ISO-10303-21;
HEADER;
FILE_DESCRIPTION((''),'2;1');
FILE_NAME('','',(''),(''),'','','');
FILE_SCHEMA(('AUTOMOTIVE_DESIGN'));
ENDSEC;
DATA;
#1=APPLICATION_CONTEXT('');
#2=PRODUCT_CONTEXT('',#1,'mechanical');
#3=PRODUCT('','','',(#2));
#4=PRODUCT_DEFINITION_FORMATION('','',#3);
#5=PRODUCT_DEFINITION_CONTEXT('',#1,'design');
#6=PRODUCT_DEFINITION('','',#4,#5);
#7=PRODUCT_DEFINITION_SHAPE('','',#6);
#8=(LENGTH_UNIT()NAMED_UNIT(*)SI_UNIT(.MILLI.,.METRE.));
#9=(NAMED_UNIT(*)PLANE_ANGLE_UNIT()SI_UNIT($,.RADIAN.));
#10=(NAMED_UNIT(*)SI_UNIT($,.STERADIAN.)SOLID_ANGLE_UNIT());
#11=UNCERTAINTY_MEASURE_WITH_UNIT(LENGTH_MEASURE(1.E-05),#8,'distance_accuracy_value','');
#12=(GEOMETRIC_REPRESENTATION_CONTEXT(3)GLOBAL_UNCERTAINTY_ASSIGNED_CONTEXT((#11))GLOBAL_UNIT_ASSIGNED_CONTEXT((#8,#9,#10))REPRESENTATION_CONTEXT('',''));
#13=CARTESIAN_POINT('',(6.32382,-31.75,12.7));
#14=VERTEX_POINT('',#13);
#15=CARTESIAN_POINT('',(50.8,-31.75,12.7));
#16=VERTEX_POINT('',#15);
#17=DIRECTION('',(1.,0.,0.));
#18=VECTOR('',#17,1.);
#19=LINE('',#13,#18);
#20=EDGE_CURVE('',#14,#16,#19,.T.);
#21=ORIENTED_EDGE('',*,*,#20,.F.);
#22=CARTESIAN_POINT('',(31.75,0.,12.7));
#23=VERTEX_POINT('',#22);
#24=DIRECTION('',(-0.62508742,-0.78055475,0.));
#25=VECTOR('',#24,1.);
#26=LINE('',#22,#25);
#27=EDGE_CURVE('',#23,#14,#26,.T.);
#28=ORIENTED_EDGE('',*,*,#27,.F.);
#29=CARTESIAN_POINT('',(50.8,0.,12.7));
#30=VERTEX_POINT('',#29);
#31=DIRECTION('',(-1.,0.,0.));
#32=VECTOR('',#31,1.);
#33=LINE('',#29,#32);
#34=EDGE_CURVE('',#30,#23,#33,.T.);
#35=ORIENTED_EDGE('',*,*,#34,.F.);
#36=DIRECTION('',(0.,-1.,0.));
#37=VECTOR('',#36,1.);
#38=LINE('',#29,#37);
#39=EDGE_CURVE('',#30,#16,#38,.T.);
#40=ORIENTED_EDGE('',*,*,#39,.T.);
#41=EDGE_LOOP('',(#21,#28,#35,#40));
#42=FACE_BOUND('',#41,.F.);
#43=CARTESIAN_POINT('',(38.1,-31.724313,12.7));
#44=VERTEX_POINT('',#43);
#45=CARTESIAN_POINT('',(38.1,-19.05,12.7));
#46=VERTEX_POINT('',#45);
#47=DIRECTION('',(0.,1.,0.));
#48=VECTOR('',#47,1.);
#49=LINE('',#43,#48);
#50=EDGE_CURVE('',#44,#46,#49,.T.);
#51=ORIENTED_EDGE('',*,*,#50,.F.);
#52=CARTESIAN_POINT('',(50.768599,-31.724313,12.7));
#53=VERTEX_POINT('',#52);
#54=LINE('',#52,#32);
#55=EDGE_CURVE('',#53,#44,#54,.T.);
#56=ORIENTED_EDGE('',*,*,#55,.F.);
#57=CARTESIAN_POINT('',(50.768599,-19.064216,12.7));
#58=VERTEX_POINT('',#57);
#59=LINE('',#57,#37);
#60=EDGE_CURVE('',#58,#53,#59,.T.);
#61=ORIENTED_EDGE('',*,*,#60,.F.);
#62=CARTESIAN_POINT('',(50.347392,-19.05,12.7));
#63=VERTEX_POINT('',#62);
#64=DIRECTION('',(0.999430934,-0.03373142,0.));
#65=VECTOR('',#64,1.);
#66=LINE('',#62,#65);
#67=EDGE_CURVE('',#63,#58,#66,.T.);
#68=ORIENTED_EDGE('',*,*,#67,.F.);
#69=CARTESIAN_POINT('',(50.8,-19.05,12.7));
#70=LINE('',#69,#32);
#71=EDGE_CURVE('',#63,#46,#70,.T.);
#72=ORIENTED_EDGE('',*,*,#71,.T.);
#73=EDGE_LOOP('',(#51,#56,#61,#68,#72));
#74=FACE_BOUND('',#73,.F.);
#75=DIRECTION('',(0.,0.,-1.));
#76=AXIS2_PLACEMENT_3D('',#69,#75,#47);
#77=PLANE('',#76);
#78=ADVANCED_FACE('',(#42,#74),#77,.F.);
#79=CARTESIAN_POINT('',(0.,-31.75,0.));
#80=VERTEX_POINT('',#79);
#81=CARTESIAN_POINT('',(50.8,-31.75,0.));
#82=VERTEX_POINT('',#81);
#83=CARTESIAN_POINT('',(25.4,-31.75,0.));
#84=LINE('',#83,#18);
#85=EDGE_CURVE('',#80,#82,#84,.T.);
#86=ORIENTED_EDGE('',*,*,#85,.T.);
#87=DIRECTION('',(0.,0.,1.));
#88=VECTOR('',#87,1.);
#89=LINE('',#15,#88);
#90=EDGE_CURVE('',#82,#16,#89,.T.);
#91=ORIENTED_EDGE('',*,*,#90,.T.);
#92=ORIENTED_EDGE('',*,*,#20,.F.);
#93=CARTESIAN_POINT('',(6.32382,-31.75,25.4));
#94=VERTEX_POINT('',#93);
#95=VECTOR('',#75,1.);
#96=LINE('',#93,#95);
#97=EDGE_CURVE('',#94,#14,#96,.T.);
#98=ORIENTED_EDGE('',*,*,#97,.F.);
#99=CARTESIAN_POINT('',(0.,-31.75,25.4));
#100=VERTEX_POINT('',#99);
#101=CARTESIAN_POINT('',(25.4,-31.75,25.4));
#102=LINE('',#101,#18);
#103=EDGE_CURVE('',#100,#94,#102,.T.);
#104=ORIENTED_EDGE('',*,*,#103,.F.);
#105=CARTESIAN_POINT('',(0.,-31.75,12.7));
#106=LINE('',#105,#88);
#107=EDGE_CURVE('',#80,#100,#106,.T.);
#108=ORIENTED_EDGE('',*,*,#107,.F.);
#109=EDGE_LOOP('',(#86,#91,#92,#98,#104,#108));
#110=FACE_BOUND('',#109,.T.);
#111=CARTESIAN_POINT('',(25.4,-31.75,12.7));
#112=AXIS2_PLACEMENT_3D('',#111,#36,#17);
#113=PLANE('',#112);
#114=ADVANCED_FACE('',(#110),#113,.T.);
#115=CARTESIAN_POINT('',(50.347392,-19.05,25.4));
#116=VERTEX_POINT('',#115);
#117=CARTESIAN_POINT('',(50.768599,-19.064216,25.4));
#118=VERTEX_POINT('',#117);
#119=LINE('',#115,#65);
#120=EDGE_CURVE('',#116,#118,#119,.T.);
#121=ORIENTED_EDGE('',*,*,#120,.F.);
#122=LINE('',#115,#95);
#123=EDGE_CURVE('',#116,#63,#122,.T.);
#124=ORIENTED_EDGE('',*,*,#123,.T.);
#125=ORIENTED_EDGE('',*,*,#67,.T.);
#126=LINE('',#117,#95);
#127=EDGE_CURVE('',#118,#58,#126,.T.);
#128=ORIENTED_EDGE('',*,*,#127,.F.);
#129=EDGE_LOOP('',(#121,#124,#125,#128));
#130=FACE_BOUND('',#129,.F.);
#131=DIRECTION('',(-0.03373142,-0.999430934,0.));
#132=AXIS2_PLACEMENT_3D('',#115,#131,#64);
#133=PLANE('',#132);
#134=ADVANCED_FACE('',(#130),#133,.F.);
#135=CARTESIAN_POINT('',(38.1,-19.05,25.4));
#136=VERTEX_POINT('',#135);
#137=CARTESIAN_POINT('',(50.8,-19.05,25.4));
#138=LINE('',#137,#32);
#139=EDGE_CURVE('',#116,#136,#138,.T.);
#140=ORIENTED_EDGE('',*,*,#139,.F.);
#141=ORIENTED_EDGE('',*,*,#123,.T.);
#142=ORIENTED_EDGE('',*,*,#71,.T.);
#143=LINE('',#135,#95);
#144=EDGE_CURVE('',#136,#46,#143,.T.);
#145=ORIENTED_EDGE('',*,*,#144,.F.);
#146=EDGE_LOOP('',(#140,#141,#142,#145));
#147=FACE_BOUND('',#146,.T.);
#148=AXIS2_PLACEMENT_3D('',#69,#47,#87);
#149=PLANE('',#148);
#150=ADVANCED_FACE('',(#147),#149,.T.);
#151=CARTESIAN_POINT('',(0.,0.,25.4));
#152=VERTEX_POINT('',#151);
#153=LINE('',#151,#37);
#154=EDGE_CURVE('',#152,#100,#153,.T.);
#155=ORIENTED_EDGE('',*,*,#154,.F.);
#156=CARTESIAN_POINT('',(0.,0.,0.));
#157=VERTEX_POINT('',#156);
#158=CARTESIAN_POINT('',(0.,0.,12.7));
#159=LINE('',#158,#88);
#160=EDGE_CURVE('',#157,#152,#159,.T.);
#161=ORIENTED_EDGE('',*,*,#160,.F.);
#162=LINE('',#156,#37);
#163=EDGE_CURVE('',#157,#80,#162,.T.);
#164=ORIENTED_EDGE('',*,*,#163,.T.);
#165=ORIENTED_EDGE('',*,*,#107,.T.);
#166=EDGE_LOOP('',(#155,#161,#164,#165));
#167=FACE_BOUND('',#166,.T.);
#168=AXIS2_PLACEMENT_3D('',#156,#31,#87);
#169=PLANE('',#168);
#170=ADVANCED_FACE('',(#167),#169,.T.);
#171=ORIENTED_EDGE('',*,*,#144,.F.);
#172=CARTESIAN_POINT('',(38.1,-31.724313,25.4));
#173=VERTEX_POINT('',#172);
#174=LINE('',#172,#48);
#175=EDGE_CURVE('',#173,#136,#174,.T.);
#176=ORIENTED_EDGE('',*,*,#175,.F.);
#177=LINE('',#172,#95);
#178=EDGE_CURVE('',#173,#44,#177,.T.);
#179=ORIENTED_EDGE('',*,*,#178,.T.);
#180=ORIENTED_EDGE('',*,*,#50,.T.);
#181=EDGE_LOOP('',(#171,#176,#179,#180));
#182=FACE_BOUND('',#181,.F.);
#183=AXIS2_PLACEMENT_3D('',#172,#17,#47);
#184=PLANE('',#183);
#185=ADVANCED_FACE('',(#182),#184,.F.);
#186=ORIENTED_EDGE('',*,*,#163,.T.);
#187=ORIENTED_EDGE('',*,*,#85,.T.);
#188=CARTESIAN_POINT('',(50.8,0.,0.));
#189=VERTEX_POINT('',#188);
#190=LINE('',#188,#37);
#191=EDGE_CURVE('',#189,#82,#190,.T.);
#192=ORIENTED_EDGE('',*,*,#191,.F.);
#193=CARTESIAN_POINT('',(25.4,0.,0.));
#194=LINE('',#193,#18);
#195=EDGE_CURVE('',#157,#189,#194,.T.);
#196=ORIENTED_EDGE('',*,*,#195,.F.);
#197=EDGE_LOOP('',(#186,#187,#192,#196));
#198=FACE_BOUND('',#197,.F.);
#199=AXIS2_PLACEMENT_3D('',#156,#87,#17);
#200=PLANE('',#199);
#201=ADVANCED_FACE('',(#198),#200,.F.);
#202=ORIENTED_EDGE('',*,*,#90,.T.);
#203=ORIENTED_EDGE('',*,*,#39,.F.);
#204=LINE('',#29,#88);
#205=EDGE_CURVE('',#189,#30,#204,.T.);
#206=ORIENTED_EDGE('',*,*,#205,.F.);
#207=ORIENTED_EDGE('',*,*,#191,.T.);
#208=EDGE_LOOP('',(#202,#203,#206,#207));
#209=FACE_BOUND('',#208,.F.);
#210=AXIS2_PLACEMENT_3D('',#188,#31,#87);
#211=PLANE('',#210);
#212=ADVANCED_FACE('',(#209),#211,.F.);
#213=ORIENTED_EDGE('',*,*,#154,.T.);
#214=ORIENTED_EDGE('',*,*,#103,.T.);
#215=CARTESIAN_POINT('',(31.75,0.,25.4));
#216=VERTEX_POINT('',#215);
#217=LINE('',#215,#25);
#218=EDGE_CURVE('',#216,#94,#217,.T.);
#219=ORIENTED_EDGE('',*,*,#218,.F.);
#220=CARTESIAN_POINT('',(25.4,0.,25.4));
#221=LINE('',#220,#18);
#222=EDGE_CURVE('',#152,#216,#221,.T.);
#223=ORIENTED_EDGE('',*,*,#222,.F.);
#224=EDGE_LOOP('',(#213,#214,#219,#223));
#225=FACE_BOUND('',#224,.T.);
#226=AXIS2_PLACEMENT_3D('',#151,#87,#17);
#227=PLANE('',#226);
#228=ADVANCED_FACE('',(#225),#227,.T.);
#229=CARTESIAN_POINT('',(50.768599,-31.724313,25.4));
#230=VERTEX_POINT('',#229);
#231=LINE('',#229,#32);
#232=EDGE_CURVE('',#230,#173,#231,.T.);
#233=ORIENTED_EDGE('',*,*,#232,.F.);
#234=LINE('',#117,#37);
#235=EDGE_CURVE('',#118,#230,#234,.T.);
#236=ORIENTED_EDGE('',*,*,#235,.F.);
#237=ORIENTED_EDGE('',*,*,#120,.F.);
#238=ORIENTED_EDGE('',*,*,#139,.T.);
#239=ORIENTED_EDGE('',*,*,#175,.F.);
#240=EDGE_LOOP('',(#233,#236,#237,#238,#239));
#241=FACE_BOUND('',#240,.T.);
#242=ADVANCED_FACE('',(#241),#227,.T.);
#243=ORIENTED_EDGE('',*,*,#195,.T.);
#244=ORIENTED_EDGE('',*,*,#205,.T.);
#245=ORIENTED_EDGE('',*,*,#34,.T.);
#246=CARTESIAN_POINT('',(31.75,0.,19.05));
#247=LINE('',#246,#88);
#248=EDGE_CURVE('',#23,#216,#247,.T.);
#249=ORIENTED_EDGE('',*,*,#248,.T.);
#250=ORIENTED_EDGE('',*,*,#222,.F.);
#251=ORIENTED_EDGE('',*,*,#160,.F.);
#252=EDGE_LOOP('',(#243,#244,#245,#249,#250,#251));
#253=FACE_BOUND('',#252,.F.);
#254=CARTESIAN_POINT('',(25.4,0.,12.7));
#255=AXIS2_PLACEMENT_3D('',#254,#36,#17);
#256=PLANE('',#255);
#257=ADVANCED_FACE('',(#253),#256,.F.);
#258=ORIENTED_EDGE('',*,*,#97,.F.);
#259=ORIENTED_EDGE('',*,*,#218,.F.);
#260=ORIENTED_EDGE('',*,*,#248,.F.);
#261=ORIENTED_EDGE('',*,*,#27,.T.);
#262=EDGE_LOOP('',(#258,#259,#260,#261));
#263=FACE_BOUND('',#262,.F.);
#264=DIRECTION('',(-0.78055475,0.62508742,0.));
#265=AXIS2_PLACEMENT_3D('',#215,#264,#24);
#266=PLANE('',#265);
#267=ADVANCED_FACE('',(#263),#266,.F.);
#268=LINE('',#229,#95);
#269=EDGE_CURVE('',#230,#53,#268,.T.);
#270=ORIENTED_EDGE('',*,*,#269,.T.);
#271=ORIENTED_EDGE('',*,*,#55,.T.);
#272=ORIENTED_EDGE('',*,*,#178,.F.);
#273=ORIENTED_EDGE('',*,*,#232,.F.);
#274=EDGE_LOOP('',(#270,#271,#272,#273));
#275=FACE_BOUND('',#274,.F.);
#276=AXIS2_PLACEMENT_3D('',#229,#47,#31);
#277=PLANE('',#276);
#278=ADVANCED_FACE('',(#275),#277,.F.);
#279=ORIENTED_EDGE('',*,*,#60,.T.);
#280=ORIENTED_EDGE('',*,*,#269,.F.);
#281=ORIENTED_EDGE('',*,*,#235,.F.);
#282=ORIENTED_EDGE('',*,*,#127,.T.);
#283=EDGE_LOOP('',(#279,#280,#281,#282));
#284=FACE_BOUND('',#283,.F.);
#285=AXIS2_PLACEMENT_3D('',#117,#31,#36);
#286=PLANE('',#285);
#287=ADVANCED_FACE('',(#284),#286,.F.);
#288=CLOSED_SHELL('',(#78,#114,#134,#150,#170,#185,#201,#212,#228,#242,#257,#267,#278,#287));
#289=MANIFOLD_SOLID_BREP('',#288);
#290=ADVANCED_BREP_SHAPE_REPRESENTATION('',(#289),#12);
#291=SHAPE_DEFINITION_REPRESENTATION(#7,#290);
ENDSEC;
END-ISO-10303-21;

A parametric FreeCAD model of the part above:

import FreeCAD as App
import Part
import Sketcher
from FreeCAD import Vector
Q = App.Units.Quantity


def add_polygon(sketch, points):
    """Adds a closed chain of lines whose ends are joined by coincident constraints."""
    first, n = sketch.GeometryCount, len(points)
    for a, b in zip(points, points[1:] + points[:1]):
        sketch.addGeometry(Part.LineSegment(App.Vector(*a, 0), App.Vector(*b, 0)), False)
    for i in range(n):
        sketch.addConstraint(Sketcher.Constraint("Coincident", first + i, 2, first + (i + 1) % n, 1))

doc = App.newDocument("Part")
body = doc.addObject("PartDesign::Body", "Body")

# Sketch on XZ plane
sketch1 = body.newObject("Sketcher::SketchObject", "Sketch")
sketch1.AttachmentSupport = (doc.getObject("XZ_Plane"), [""])
sketch1.MapMode = "FlatFace"
add_polygon(sketch1, [(0, 25), (0, 0), (51, 0), (51, 25)])  # lines 0-3
sketch1.addConstraint([
    Sketcher.Constraint("Vertical", 0),
    Sketcher.Constraint("Horizontal", 1),
    Sketcher.Constraint("Vertical", 2),
    Sketcher.Constraint("Horizontal", 3),
    Sketcher.Constraint("Coincident", 0, 2, -1, 1),
    Sketcher.Constraint("DistanceX", 1, 1, 1, 2, Q("2 in")),
    Sketcher.Constraint("DistanceY", 0, 2, 0, 1, Q("1 in")),
])
pad1 = body.newObject("PartDesign::Pad", "Pad")
pad1.Profile = sketch1
pad1.Length = Q("1.25 in")

# Sketch on YZ plane
sketch2 = body.newObject("Sketcher::SketchObject", "Sketch001")
sketch2.AttachmentSupport = (doc.getObject("YZ_Plane"), [""])
sketch2.MapMode = "FlatFace"
sketch2.AttachmentOffset = App.Placement(Vector(0, 0, 2 * 25.4), App.Rotation())
add_polygon(sketch2, [(-19, 25), (-19, 13), (0, 13), (0, 25)])  # lines 0-3
sketch2.addConstraint([
    Sketcher.Constraint("Vertical", 0),
    Sketcher.Constraint("Horizontal", 1),
    Sketcher.Constraint("Vertical", 2),
    Sketcher.Constraint("Horizontal", 3),
    Sketcher.Constraint("PointOnObject", 1, 2, -2),
    Sketcher.Constraint("DistanceY", 0, 2, 0, 1, Q("0.5 in")),
    Sketcher.Constraint("DistanceY", -1, 1, 2, 2, Q("1 in")),
    Sketcher.Constraint("DistanceX", 1, 1, 1, 2, Q("0.75 in")),
])
pocket1 = body.newObject("PartDesign::Pocket", "Pocket")
pocket1.Profile = sketch2
pocket1.Length = Q("0.75 in")

# Sketch on XY plane
sketch3 = body.newObject("Sketcher::SketchObject", "Sketch002")
sketch3.AttachmentSupport = (doc.getObject("XY_Plane"), [""])
sketch3.MapMode = "FlatFace"
sketch3.AttachmentOffset = App.Placement(Vector(0, 0, 1 * 25.4), App.Rotation())
add_polygon(sketch3, [(50.77, -31.72), (38.1, -31.72), (38.1, -19.05), (31.75, -19.05), (31.75, 0), (6.32, -31.75), (50.8, -31.75), (50.8, -19.05), (50.35, -19.05), (50.77, -19.06)])  # lines 0-9
sketch3.addConstraint([
    Sketcher.Constraint("Horizontal", 0),
    Sketcher.Constraint("Vertical", 1),
    Sketcher.Constraint("Horizontal", 2),
    Sketcher.Constraint("Vertical", 3),
    Sketcher.Constraint("Horizontal", 5),
    Sketcher.Constraint("Vertical", 6),
    Sketcher.Constraint("Horizontal", 7),
    Sketcher.Constraint("Vertical", 9),
    Sketcher.Constraint("PointOnObject", 3, 2, -1),
    Sketcher.Constraint("Horizontal", 2, 2, 6, 2),
    Sketcher.Constraint("DistanceY", 6, 1, 6, 2, Q("0.5 in")),
    Sketcher.Constraint("DistanceX", -1, 1, 5, 2, Q("2 in")),
    Sketcher.Constraint("DistanceX", 2, 2, 2, 1, Q("0.25 in")),
    Sketcher.Constraint("DistanceY", 3, 1, 3, 2, Q("0.75 in")),
    Sketcher.Constraint("DistanceX", -1, 1, 0, 2, Q("1.5 in")),
    Sketcher.Constraint("DistanceX", 0, 2, 0, 1, 12.668599),
    Sketcher.Constraint("Distance", 4, 40.676199),
    Sketcher.Constraint("DistanceX", 7, 2, 7, 1, 0.452608),
    Sketcher.Constraint("DistanceY", 1, 1, 1, 2, 12.674313),
    Sketcher.Constraint("DistanceY", 9, 2, 9, 1, 12.660097),
])
pocket2 = body.newObject("PartDesign::Pocket", "Pocket001")
pocket2.Profile = sketch3
pocket2.Length = Q("0.5 in")

doc.recompute()
